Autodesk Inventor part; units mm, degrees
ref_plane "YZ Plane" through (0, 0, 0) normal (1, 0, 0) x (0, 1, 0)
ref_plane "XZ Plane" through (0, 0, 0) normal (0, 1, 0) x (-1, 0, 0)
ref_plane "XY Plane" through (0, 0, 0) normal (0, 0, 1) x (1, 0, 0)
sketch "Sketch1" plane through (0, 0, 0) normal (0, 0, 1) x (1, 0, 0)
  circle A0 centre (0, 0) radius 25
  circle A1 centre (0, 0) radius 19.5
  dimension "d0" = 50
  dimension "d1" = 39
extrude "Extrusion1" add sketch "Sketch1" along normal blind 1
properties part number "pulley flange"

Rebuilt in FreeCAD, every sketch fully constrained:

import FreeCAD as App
import Part
import Sketcher
Q = App.Units.Quantity

doc = App.newDocument("Part")
body = doc.addObject("PartDesign::Body", "Body")

# Sketch on XY plane
sketch1 = body.newObject("Sketcher::SketchObject", "Sketch")
sketch1.AttachmentSupport = (doc.getObject("XY_Plane"), [""])
sketch1.MapMode = "FlatFace"
sketch1.addGeometry([
    Part.Circle(App.Vector(0, 0, 0), App.Vector(0, 0, 1), 25),
    Part.Circle(App.Vector(0, 0, 0), App.Vector(0, 0, 1), 20),
], False)
sketch1.addConstraint([
    Sketcher.Constraint("Coincident", 0, 3, -1, 1),
    Sketcher.Constraint("Coincident", 1, 3, -1, 1),
    Sketcher.Constraint("Diameter", 0, Q("50 mm")),
    Sketcher.Constraint("Diameter", 1, Q("39 mm")),
])
pad1 = body.newObject("PartDesign::Pad", "Pad")
pad1.Profile = sketch1
pad1.Length = 1

doc.recompute()
